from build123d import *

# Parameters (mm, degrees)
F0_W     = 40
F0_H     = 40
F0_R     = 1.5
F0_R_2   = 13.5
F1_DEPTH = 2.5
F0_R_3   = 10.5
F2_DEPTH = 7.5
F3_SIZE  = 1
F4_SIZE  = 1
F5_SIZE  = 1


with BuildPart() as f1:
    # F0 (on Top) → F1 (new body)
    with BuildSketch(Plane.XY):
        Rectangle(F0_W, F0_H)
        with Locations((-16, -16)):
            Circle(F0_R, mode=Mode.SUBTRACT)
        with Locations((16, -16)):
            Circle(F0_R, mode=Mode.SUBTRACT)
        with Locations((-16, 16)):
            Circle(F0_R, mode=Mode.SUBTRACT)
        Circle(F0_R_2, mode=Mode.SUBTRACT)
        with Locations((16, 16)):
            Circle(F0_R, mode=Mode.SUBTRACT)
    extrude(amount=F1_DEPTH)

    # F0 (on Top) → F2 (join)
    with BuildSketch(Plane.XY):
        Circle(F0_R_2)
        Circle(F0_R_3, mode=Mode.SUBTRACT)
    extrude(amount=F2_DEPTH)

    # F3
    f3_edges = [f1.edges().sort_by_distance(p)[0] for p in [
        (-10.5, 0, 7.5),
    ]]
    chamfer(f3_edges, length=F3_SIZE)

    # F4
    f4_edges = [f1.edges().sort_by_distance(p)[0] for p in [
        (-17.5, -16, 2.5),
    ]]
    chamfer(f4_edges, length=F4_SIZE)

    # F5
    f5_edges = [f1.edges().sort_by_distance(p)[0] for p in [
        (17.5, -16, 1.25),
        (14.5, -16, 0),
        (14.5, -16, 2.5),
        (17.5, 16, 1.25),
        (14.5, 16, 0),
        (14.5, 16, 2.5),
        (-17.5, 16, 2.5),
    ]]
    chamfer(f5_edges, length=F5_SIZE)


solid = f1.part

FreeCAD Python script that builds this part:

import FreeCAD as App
import Part
import Sketcher


def edges_at(feature, points):
    """Names of the edges that pass closest to the given points."""
    edges = feature.Shape.Edges
    near = lambda p: min(range(len(edges)), key=lambda i: edges[i].distToShape(Part.Vertex(*p))[0])
    return sorted({f"Edge{near(p) + 1}" for p in points})


def add_polygon(sketch, points):
    """Adds a closed chain of lines whose ends are joined by coincident constraints."""
    first, n = sketch.GeometryCount, len(points)
    for a, b in zip(points, points[1:] + points[:1]):
        sketch.addGeometry(Part.LineSegment(App.Vector(*a, 0), App.Vector(*b, 0)), False)
    for i in range(n):
        sketch.addConstraint(Sketcher.Constraint("Coincident", first + i, 2, first + (i + 1) % n, 1))

doc = App.newDocument("Part")
body = doc.addObject("PartDesign::Body", "Body")

sketch1 = doc.addObject("Sketcher::SketchObject", "Sketch")
body.addObject(sketch1)
sketch1.AttachmentSupport = (doc.XY_Plane, [""])
sketch1.MapMode = "FlatFace"
add_polygon(sketch1, [(-20, 20), (-20, -20), (20, -20), (20, 20)])
sketch1.addGeometry(Part.Circle(App.Vector(-16, -16, 0), App.Vector(0, 0, 1), 1.5), False)
sketch1.addGeometry(Part.Circle(App.Vector(16, -16, 0), App.Vector(0, 0, 1), 1.5), False)
sketch1.addGeometry(Part.Circle(App.Vector(-16, 16, 0), App.Vector(0, 0, 1), 1.5), False)
sketch1.addGeometry(Part.Circle(App.Vector(0, 0, 0), App.Vector(0, 0, 1), 13.5), False)
sketch1.addGeometry(Part.Circle(App.Vector(16, 16, 0), App.Vector(0, 0, 1), 1.5), False)
sketch1.addConstraint([
    Sketcher.Constraint("Vertical", 0),
    Sketcher.Constraint("Horizontal", 1),
    Sketcher.Constraint("Vertical", 2),
    Sketcher.Constraint("Horizontal", 3),
    Sketcher.Constraint("Coincident", 7, 3, -1, 1),
    Sketcher.Constraint("Equal", 4, 5),
    Sketcher.Constraint("Equal", 5, 6),
    Sketcher.Constraint("Equal", 6, 8),
    Sketcher.Constraint("Symmetric", 5, 3, 6, 3, -1, 1),
    Sketcher.Constraint("Symmetric", 4, 3, 8, 3, -1, 1),
    Sketcher.Constraint("Symmetric", 0, 2, 2, 2, -1, 1),
    Sketcher.Constraint("Symmetric", 4, 3, 5, 3, -2),
    Sketcher.Constraint("Equal", 3, 0),
    Sketcher.Constraint("Diameter", 4, 3.0),
    Sketcher.Constraint("Diameter", 7, 27.0),
    Sketcher.Constraint("DistanceX", 1, 1, 1, 2, 40.0),
    Sketcher.Constraint("DistanceX", 4, 3, -1, 1, 16.0),
    Sketcher.Constraint("DistanceY", 4, 3, -1, 1, 16.0),
])
pad1 = doc.addObject("PartDesign::Pad", "Pad")
body.addObject(pad1)
pad1.Profile = sketch1
pad1.Length = 2.5

sketch2 = doc.addObject("Sketcher::SketchObject", "Sketch001")
body.addObject(sketch2)
sketch2.AttachmentSupport = (doc.XY_Plane, [""])
sketch2.MapMode = "FlatFace"
sketch2.addGeometry([
    Part.Circle(App.Vector(0, 0, 0), App.Vector(0, 0, 1), 13.5),
    Part.Circle(App.Vector(0, 0, 0), App.Vector(0, 0, 1), 10.5),
], False)
sketch2.addConstraint([
    Sketcher.Constraint("Coincident", 0, 3, -1, 1),
    Sketcher.Constraint("Coincident", 1, 3, -1, 1),
    Sketcher.Constraint("Diameter", 0, 27.0),
    Sketcher.Constraint("Diameter", 1, 21.0),
])
pad2 = doc.addObject("PartDesign::Pad", "Pad001")
body.addObject(pad2)
pad2.Profile = sketch2
pad2.Length = 7.5
doc.recompute()

chamfer = doc.addObject("PartDesign::Chamfer", "Chamfer")
body.addObject(chamfer)
chamfer.Base = (pad2, edges_at(pad2, [(-10.5, 0, 7.5)]))
chamfer.Size = 1
doc.recompute()

chamfer2 = doc.addObject("PartDesign::Chamfer", "Chamfer001")
body.addObject(chamfer2)
chamfer2.Base = (chamfer, edges_at(chamfer, [(-17.5, -16, 2.5)]))
chamfer2.Size = 1
doc.recompute()

chamfer3 = doc.addObject("PartDesign::Chamfer", "Chamfer002")
body.addObject(chamfer3)
chamfer3.Base = (chamfer2, edges_at(chamfer2, [
    (17.5, -16, 1.25),
    (14.5, -16, 0),
    (14.5, -16, 2.5),
    (17.5, 16, 1.25),
    (14.5, 16, 0),
    (14.5, 16, 2.5),
    (-17.5, 16, 2.5),
]))
chamfer3.Size = 1

doc.recompute()
